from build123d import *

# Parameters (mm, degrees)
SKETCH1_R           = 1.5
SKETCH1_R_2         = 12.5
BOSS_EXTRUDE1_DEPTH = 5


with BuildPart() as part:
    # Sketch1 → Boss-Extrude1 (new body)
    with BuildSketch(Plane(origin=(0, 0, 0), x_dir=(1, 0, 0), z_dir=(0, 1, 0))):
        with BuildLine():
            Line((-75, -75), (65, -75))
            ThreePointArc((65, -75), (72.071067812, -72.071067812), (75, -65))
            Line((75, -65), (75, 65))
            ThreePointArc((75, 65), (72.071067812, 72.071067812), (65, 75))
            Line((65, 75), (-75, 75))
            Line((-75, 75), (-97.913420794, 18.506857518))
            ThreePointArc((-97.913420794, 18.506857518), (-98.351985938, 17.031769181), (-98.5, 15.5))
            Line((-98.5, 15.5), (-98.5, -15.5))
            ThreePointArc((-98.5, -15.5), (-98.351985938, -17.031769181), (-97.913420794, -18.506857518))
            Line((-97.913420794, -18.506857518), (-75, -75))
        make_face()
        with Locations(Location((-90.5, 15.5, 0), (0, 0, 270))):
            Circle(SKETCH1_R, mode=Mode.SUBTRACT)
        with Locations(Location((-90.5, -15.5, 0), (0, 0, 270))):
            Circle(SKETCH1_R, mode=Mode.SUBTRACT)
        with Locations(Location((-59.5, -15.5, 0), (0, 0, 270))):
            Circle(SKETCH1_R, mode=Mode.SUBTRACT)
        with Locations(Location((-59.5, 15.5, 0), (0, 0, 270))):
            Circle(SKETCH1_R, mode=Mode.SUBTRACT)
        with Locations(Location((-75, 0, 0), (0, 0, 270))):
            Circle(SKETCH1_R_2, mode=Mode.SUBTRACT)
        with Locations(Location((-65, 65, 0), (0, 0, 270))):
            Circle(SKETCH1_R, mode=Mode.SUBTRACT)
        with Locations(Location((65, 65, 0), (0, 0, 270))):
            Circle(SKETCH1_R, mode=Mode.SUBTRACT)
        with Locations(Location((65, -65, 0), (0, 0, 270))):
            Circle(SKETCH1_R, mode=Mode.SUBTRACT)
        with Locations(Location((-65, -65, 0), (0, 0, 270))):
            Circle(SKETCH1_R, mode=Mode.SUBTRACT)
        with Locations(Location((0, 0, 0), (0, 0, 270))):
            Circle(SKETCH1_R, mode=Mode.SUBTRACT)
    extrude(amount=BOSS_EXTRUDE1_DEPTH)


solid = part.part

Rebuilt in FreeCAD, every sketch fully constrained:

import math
import FreeCAD as App
import Part
import Sketcher
from FreeCAD import Vector

doc = App.newDocument("Part")
body = doc.addObject("PartDesign::Body", "Body")

sketch1 = doc.addObject("Sketcher::SketchObject", "Sketch")
body.addObject(sketch1)
sketch1.AttachmentSupport = (doc.XZ_Plane, [""])
sketch1.MapMode = "FlatFace"
sketch1.addGeometry([
    Part.LineSegment(Vector(-75, 75, 0), Vector(65, 75, 0)),
    Part.ArcOfCircle(Part.Circle(Vector(65, 65, 0), Vector(0, 0, 1), 10), math.radians(0), math.radians(90)),
    Part.LineSegment(Vector(75, 65, 0), Vector(75, -65, 0)),
    Part.ArcOfCircle(Part.Circle(Vector(65, -65, 0), Vector(0, 0, 1), 10), math.radians(-90), math.radians(0)),
    Part.LineSegment(Vector(65, -75, 0), Vector(-75, -75, 0)),
    Part.LineSegment(Vector(-75, -75, 0), Vector(-97.9, -18.5, 0)),
    Part.ArcOfCircle(Part.Circle(Vector(-90.5, -15.5, 0), Vector(0, 0, 1), 8), math.radians(-180), math.radians(-158)),
    Part.LineSegment(Vector(-98.5, -15.5, 0), Vector(-98.5, 15.5, 0)),
    Part.ArcOfCircle(Part.Circle(Vector(-90.5, 15.5, 0), Vector(0, 0, 1), 8), math.radians(158), math.radians(180)),
    Part.LineSegment(Vector(-97.9, 18.5, 0), Vector(-75, 75, 0)),
    Part.Circle(Vector(-65, 65, 0), Vector(0, 0, 1), 1.5),
    Part.Circle(Vector(-90.5, 15.5, 0), Vector(0, 0, 1), 1.5),
    Part.Circle(Vector(-59.5, 15.5, 0), Vector(0, 0, 1), 1.5),
    Part.Circle(Vector(65, 65, 0), Vector(0, 0, 1), 1.5),
    Part.Circle(Vector(-75, 0, 0), Vector(0, 0, 1), 12.5),
    Part.Circle(Vector(-90.5, -15.5, 0), Vector(0, 0, 1), 1.5),
    Part.Circle(Vector(-59.5, -15.5, 0), Vector(0, 0, 1), 1.5),
    Part.Circle(Vector(-65, -65, 0), Vector(0, 0, 1), 1.5),
    Part.Circle(Vector(0, 0, 0), Vector(0, 0, 1), 1.5),
    Part.Circle(Vector(65, -65, 0), Vector(0, 0, 1), 1.5),
], False)
sketch1.addConstraint([
    Sketcher.Constraint("Tangent", 0, 2, 1, 2),
    Sketcher.Constraint("Tangent", 1, 1, 2, 1),
    Sketcher.Constraint("Tangent", 2, 2, 3, 2),
    Sketcher.Constraint("Tangent", 3, 1, 4, 1),
    Sketcher.Constraint("Coincident", 4, 2, 5, 1),
    Sketcher.Constraint("Tangent", 5, 2, 6, 2),
    Sketcher.Constraint("Tangent", 6, 1, 7, 1),
    Sketcher.Constraint("Tangent", 7, 2, 8, 2),
    Sketcher.Constraint("Tangent", 8, 1, 9, 1),
    Sketcher.Constraint("Coincident", 9, 2, 0, 1),
    Sketcher.Constraint("Horizontal", 0),
    Sketcher.Constraint("Vertical", 2),
    Sketcher.Constraint("Horizontal", 4),
    Sketcher.Constraint("Vertical", 7),
    Sketcher.Constraint("Coincident", 18, 3, -1, 1),
    Sketcher.Constraint("Coincident", 11, 3, 8, 3),
    Sketcher.Constraint("Coincident", 13, 3, 1, 3),
    Sketcher.Constraint("Coincident", 15, 3, 6, 3),
    Sketcher.Constraint("Coincident", 19, 3, 3, 3),
    Sketcher.Constraint("Equal", 1, 3),
    Sketcher.Constraint("Equal", 6, 8),
    Sketcher.Constraint("Equal", 10, 11),
    Sketcher.Constraint("Equal", 11, 12),
    Sketcher.Constraint("Equal", 12, 13),
    Sketcher.Constraint("Equal", 13, 15),
    Sketcher.Constraint("Equal", 15, 16),
    Sketcher.Constraint("Equal", 16, 17),
    Sketcher.Constraint("Equal", 17, 18),
    Sketcher.Constraint("Equal", 18, 19),
    Sketcher.Constraint("Symmetric", 3, 3, 10, 3, -1, 1),
    Sketcher.Constraint("Symmetric", 1, 3, 17, 3, -1, 1),
    Sketcher.Constraint("Symmetric", 12, 3, 16, 3, -1),
    Sketcher.Constraint("Symmetric", 5, 2, 8, 1, -1),
    Sketcher.Constraint("PointOnObject", 14, 3, -1),
    Sketcher.Constraint("Horizontal", 1, 3, 10, 3),
    Sketcher.Constraint("Horizontal", 11, 3, 12, 3),
    Sketcher.Constraint("Vertical", 14, 3, 4, 2),
    Sketcher.Constraint("Diameter", 10, 3.0),
    Sketcher.Constraint("Diameter", 14, 25.0),
    Sketcher.Constraint("Radius", 1, 10.0),
    Sketcher.Constraint("Radius", 6, 8.0),
    Sketcher.Constraint("DistanceX", 0, 1, 0, 2, 140.0),
    Sketcher.Constraint("DistanceY", 2, 2, 2, 1, 130.0),
    Sketcher.Constraint("DistanceY", 7, 1, 7, 2, 31.0),
    Sketcher.Constraint("DistanceX", -1, 1, 1, 3, 65.0),
    Sketcher.Constraint("DistanceX", 8, 3, 12, 3, 31.0),
    Sketcher.Constraint("DistanceX", 6, 3, -1, 1, 90.5),
])
pad1 = doc.addObject("PartDesign::Pad", "Pad")
body.addObject(pad1)
pad1.Profile = sketch1
pad1.Length = 5
pad1.Reversed = True

doc.recompute()
